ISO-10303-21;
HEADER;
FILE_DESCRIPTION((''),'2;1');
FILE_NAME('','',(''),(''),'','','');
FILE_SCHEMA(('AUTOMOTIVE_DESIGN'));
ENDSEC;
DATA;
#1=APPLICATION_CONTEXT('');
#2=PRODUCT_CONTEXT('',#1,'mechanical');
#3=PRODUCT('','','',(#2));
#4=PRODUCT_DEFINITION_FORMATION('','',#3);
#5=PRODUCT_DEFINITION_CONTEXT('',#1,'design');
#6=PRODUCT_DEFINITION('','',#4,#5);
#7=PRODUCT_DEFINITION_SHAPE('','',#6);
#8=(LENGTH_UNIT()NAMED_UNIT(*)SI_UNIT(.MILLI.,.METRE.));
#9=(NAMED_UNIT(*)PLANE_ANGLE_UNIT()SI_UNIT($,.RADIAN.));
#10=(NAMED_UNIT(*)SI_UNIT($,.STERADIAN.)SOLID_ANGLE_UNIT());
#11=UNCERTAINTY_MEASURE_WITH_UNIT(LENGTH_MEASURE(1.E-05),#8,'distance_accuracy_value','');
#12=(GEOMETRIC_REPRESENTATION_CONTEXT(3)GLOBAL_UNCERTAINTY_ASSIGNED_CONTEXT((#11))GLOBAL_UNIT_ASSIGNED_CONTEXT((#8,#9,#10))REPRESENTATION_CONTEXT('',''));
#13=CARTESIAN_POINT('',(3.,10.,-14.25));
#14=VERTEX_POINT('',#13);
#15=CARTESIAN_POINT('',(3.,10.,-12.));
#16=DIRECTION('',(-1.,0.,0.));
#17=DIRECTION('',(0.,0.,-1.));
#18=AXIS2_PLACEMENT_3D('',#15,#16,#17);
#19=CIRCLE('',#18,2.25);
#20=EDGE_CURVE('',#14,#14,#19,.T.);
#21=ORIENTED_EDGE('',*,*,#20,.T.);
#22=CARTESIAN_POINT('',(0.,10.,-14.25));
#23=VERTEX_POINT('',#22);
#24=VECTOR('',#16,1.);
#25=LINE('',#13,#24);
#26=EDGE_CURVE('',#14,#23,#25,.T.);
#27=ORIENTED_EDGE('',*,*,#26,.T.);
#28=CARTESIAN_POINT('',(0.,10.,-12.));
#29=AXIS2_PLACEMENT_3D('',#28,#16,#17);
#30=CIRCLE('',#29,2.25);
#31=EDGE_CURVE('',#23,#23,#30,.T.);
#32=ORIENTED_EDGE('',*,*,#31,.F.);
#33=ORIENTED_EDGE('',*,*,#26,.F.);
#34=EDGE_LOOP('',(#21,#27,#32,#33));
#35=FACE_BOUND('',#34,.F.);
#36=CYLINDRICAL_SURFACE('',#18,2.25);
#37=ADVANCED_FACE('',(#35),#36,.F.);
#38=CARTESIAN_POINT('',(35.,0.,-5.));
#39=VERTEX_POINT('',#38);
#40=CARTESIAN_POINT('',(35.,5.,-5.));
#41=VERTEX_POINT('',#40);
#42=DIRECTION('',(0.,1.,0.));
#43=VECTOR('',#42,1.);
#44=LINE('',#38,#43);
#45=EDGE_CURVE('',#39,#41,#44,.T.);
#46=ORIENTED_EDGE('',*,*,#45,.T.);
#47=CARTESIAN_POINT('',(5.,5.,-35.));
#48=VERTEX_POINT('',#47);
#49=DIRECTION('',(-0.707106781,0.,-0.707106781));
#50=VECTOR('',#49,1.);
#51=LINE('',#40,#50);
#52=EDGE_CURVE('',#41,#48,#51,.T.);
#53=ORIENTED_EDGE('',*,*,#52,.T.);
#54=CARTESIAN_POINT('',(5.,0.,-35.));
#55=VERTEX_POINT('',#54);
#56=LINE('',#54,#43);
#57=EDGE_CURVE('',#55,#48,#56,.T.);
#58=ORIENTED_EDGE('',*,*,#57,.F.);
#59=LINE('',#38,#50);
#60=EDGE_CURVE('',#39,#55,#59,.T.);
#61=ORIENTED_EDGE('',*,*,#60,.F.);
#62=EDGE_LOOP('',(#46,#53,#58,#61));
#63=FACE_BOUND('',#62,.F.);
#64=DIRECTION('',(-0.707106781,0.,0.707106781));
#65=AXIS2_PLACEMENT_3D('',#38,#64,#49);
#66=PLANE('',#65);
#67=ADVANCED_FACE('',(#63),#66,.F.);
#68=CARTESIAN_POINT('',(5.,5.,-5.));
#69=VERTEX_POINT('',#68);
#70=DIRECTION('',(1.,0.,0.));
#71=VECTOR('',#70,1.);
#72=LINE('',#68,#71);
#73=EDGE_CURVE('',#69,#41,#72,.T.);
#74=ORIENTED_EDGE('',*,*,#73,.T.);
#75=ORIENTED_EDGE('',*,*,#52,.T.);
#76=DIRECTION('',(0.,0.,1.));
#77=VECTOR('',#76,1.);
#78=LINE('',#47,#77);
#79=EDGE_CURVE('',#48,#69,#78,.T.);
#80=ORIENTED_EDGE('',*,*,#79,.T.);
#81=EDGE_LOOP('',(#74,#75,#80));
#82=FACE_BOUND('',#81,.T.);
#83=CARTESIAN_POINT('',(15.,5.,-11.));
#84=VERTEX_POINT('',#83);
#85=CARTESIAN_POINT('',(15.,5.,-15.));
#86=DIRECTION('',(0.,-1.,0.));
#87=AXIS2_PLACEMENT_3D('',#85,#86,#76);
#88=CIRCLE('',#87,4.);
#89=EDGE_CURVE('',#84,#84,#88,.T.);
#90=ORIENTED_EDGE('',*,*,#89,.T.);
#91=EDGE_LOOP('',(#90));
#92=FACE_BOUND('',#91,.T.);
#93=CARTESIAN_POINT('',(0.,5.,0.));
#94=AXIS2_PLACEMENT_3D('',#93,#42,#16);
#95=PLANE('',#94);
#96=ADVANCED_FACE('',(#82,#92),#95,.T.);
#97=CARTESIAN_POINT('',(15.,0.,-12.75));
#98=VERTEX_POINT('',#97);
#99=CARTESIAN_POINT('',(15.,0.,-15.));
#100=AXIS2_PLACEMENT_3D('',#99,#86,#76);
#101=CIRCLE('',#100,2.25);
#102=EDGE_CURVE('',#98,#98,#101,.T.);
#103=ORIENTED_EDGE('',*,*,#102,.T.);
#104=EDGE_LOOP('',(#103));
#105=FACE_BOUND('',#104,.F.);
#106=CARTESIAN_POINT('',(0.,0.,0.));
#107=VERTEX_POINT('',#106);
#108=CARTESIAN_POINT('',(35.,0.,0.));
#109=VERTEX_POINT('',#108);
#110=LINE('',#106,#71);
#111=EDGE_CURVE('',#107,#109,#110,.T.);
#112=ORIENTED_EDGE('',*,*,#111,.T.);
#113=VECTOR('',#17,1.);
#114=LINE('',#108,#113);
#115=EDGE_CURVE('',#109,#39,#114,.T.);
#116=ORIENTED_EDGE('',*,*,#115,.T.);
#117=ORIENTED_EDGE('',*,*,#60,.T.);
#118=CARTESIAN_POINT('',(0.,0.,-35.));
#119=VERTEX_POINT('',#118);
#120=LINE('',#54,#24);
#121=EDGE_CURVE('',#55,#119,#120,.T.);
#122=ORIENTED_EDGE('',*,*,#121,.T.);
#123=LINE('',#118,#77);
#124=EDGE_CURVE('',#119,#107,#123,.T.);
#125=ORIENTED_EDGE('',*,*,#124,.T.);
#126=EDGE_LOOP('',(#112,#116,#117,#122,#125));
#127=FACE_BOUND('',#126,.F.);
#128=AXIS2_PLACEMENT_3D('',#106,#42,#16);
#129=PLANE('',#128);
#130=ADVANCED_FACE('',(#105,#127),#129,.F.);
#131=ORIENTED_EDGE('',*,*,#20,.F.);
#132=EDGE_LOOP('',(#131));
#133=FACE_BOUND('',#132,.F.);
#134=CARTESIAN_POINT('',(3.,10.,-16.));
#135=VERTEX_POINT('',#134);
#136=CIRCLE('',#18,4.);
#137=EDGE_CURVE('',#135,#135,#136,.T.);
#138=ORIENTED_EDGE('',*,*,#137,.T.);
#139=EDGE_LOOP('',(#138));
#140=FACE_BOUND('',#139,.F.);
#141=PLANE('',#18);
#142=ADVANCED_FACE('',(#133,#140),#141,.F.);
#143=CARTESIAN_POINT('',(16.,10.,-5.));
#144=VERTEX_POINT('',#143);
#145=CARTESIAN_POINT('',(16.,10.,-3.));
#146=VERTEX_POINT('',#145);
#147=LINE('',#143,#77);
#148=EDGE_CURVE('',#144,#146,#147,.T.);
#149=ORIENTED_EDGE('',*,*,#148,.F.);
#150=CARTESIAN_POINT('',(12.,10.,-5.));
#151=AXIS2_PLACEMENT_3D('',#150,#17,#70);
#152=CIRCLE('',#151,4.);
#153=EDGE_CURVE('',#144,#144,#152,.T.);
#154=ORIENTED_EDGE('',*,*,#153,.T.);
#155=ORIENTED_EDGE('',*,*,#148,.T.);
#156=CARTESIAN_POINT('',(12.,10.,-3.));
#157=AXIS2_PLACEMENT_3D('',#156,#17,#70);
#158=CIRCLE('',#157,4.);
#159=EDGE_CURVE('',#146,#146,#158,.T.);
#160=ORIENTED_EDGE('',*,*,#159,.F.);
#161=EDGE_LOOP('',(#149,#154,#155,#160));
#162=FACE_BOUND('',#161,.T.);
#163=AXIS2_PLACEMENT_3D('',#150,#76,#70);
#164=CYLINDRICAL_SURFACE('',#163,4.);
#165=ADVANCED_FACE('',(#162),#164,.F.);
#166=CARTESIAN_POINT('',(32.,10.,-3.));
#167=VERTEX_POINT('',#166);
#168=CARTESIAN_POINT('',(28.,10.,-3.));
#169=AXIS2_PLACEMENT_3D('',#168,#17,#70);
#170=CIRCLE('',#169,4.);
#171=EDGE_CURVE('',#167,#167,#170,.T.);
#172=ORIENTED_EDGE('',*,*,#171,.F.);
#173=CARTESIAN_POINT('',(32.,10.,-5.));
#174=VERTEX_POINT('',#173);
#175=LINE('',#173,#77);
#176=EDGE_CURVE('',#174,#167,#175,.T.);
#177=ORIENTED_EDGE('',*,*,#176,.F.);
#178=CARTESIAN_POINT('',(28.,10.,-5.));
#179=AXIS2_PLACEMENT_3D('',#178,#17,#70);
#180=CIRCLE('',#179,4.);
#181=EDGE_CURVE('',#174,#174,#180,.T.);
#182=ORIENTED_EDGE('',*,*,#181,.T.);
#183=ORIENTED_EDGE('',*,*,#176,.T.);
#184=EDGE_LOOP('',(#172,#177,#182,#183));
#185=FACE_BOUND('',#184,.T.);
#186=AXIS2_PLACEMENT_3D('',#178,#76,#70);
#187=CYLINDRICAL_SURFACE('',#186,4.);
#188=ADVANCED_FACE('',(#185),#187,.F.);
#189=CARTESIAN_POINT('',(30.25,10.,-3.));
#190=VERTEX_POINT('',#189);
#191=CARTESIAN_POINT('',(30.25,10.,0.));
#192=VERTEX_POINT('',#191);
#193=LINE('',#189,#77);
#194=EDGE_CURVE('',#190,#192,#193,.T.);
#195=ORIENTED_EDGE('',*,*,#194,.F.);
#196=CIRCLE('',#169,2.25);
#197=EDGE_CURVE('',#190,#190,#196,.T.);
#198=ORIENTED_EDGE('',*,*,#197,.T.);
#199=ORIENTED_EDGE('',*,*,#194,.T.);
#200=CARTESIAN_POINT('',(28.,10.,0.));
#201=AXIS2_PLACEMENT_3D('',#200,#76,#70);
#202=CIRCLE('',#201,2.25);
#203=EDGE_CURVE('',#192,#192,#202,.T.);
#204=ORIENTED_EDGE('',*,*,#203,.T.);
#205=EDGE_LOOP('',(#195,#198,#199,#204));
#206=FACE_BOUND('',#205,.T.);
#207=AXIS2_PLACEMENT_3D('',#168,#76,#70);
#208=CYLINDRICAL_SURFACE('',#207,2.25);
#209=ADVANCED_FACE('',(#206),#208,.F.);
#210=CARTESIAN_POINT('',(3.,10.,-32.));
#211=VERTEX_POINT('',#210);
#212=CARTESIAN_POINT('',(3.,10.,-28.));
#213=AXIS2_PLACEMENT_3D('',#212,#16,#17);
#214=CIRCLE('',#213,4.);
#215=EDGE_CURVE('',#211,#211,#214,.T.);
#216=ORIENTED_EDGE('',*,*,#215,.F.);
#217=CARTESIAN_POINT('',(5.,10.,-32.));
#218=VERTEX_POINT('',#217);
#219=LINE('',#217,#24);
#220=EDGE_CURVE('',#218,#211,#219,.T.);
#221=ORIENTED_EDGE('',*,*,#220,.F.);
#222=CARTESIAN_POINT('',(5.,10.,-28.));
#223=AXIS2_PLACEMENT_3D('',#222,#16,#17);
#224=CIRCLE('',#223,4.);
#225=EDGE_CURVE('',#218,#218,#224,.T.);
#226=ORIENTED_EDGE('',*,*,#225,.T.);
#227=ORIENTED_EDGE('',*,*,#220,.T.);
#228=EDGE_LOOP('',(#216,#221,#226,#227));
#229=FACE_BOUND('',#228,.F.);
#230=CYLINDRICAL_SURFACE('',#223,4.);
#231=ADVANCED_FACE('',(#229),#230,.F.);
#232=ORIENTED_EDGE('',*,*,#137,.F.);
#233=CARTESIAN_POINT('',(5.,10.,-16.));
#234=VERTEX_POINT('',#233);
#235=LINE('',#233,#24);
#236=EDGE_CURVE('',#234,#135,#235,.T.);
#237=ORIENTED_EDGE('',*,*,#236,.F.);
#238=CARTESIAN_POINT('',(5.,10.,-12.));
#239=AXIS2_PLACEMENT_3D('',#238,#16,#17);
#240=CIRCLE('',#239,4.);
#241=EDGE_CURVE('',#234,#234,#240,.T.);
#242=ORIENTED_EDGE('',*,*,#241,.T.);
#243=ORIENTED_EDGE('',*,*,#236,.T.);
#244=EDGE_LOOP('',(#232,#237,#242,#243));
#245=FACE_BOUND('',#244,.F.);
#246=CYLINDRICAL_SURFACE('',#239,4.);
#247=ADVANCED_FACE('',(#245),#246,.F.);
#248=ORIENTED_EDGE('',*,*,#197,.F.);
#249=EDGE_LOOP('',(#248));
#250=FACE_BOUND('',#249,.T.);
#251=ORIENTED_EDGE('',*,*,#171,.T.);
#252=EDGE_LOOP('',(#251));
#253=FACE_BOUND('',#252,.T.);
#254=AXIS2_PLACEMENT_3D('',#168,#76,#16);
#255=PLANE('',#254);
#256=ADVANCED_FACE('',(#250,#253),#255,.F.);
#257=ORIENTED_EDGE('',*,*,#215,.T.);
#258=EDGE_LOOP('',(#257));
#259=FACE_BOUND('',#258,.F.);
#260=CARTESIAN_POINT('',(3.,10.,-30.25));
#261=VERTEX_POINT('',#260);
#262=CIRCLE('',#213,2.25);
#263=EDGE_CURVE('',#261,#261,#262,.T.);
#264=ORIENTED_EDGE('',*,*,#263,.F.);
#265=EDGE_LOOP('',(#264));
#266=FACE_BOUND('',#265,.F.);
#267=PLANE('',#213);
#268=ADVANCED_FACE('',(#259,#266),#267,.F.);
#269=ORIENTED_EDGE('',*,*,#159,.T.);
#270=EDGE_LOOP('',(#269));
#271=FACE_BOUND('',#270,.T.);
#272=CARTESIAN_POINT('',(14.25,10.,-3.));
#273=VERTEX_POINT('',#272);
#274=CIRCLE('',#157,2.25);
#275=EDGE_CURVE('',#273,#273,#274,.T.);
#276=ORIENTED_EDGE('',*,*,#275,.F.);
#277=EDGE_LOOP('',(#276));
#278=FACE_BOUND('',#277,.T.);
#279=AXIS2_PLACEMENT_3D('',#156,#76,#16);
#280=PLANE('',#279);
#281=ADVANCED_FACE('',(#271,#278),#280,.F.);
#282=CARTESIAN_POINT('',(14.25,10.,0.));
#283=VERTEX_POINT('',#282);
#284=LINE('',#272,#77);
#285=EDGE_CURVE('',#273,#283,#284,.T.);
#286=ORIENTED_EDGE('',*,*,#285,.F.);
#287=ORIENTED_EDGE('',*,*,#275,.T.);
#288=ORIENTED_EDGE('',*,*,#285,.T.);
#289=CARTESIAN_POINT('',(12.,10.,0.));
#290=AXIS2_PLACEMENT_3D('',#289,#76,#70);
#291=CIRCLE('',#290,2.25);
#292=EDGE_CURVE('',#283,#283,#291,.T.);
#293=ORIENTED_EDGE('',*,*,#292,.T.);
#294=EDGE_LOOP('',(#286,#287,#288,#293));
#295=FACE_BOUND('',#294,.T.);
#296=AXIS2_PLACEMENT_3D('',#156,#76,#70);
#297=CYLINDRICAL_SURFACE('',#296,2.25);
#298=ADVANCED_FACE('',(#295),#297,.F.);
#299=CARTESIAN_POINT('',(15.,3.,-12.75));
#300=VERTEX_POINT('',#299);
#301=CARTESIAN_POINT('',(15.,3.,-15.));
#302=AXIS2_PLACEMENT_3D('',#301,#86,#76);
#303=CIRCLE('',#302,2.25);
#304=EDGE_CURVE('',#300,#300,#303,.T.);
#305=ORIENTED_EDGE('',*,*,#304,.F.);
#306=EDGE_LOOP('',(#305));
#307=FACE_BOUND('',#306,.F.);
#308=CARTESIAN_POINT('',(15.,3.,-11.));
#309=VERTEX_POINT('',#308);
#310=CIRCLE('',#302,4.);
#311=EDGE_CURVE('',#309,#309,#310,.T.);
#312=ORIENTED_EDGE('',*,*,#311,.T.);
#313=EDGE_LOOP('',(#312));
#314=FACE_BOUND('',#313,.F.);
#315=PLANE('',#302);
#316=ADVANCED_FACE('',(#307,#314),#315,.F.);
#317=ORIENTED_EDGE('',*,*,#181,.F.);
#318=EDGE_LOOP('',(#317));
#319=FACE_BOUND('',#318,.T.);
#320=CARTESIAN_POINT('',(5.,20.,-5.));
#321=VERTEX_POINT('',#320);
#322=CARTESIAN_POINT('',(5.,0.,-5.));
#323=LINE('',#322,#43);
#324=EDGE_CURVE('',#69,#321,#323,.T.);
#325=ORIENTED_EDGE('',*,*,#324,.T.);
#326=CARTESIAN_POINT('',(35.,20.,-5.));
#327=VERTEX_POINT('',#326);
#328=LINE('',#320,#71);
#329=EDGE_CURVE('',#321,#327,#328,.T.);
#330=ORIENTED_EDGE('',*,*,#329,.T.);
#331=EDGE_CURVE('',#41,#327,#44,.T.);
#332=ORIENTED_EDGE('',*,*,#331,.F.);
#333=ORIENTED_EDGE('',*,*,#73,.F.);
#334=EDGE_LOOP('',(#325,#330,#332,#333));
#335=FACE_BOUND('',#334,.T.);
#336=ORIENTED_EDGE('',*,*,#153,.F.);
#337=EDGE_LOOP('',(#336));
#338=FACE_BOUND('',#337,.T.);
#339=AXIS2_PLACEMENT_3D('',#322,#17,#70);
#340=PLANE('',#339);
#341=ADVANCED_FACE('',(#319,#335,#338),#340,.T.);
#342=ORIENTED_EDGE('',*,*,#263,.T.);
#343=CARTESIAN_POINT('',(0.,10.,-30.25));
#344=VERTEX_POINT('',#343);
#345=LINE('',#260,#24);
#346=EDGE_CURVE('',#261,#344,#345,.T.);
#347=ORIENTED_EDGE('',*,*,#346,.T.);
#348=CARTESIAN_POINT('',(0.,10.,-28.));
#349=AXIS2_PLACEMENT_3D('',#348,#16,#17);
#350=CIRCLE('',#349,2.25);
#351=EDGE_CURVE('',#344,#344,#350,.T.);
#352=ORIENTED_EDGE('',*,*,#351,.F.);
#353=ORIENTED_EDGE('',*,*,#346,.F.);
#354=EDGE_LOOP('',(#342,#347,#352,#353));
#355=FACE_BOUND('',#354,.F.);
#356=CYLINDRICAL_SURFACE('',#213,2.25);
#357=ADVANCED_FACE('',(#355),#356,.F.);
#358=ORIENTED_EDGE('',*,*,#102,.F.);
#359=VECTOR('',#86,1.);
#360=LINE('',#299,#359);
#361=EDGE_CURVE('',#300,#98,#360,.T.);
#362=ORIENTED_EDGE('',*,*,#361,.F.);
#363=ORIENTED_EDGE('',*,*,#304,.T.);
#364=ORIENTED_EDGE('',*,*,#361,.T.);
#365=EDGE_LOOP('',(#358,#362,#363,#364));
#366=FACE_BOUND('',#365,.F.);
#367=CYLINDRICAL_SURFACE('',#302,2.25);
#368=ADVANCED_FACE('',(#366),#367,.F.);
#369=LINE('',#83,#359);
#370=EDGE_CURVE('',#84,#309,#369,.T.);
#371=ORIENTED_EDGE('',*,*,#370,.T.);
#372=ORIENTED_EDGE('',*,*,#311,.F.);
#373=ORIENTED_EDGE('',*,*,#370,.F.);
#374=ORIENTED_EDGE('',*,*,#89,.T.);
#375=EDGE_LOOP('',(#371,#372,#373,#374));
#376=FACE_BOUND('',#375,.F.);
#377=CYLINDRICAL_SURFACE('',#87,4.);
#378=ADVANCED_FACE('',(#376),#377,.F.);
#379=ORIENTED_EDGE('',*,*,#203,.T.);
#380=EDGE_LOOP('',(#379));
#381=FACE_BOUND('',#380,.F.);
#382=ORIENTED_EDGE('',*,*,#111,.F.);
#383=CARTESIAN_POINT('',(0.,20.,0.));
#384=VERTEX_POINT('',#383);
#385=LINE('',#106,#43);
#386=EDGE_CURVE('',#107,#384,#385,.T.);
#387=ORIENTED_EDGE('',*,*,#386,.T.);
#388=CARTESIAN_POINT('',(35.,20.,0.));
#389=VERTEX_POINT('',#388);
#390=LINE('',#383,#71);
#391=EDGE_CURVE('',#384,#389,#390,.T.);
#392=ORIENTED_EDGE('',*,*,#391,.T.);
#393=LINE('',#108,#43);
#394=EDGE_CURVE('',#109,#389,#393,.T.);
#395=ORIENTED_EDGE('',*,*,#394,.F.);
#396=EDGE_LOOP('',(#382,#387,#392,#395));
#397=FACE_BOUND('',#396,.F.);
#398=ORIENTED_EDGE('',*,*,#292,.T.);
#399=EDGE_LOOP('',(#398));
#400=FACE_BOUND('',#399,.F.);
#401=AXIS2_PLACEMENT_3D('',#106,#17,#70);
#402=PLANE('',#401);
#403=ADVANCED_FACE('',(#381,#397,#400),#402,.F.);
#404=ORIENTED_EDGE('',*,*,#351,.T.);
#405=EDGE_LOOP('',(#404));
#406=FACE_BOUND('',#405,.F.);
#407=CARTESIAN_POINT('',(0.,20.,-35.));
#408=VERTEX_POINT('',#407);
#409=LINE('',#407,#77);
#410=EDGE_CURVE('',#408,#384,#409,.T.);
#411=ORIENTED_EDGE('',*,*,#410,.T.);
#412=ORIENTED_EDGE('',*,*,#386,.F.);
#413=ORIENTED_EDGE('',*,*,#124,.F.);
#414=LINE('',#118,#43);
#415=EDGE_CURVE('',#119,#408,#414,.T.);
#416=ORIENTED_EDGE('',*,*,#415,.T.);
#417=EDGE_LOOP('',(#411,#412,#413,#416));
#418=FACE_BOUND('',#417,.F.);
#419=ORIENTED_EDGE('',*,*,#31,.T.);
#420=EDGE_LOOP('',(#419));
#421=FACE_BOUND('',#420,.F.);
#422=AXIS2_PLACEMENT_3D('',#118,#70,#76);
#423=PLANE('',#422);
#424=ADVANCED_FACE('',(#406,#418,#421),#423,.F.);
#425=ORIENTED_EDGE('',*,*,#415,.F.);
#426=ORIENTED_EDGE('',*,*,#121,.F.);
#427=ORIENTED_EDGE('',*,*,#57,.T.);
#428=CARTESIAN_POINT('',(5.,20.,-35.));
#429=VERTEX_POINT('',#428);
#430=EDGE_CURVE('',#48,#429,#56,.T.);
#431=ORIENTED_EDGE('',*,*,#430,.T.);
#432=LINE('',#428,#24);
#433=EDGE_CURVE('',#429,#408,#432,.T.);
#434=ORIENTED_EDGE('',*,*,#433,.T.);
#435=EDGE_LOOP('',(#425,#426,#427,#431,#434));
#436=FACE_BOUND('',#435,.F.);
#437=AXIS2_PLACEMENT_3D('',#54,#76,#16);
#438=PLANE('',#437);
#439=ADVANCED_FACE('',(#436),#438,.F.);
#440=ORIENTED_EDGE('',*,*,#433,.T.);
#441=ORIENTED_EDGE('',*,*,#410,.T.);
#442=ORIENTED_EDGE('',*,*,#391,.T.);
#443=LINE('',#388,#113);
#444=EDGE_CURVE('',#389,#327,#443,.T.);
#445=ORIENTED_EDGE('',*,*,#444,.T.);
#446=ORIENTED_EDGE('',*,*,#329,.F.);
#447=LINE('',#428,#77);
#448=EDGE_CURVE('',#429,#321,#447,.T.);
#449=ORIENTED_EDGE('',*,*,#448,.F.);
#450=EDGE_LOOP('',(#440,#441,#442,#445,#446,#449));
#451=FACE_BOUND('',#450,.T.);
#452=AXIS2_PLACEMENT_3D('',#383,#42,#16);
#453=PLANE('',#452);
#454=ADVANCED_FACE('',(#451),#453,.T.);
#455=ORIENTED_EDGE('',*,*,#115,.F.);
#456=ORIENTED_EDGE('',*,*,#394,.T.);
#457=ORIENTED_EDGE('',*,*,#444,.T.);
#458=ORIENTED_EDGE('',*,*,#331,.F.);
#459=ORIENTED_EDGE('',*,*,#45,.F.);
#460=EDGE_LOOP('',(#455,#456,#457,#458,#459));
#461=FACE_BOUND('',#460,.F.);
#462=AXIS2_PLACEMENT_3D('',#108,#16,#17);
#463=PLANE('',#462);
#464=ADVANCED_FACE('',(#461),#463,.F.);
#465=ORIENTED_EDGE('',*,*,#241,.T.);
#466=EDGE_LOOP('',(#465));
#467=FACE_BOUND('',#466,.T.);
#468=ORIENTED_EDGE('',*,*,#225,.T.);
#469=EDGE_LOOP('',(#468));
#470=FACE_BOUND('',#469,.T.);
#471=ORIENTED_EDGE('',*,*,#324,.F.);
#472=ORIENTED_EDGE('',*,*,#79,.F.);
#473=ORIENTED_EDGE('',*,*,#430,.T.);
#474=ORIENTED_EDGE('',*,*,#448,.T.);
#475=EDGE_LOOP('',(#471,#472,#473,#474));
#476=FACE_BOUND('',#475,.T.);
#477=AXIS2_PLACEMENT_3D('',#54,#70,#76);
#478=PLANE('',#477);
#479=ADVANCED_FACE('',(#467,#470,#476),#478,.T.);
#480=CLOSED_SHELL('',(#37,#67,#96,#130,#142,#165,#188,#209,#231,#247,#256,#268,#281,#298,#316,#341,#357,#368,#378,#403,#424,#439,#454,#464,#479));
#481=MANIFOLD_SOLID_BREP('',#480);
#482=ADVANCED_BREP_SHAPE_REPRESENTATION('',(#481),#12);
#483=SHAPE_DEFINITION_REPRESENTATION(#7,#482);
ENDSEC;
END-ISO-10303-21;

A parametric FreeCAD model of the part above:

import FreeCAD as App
import Part
import Sketcher
Q = App.Units.Quantity


def add_polygon(sketch, points):
    """Adds a closed chain of lines whose ends are joined by coincident constraints."""
    first, n = sketch.GeometryCount, len(points)
    for a, b in zip(points, points[1:] + points[:1]):
        sketch.addGeometry(Part.LineSegment(App.Vector(*a, 0), App.Vector(*b, 0)), False)
    for i in range(n):
        sketch.addConstraint(Sketcher.Constraint("Coincident", first + i, 2, first + (i + 1) % n, 1))

doc = App.newDocument("Part")
body = doc.addObject("PartDesign::Body", "Body")

sketch1 = doc.addObject("Sketcher::SketchObject", "Sketch")
body.addObject(sketch1)
sketch1.AttachmentSupport = (doc.XZ_Plane, [""])
sketch1.MapMode = "FlatFace"
add_polygon(sketch1, [(0, -35), (0, 0), (35, 0), (35, -5), (5, -5), (5, -35)])
sketch1.addConstraint([
    Sketcher.Constraint("Vertical", 0),
    Sketcher.Constraint("Horizontal", 1),
    Sketcher.Constraint("Vertical", 2),
    Sketcher.Constraint("Horizontal", 3),
    Sketcher.Constraint("Vertical", 4),
    Sketcher.Constraint("Horizontal", 5),
    Sketcher.Constraint("Coincident", 0, 2, -1, 1),
    Sketcher.Constraint("Equal", 1, 0),
    Sketcher.Constraint("Equal", 5, 2),
    Sketcher.Constraint("DistanceX", 1, 1, 1, 2, Q("35 mm")),
    Sketcher.Constraint("DistanceX", 5, 2, 5, 1, Q("5 mm")),
])
pad1 = doc.addObject("PartDesign::Pad", "Pad")
body.addObject(pad1)
pad1.Profile = sketch1
pad1.Length = 20
pad1.Reversed = True

sketch2 = doc.addObject("Sketcher::SketchObject", "Sketch001")
body.addObject(sketch2)
sketch2.AttachmentSupport = (doc.XZ_Plane, [""])
sketch2.MapMode = "FlatFace"
add_polygon(sketch2, [(5, -5), (35, -5), (5, -35)])
sketch2.addConstraint([
    Sketcher.Constraint("Horizontal", 0),
    Sketcher.Constraint("Vertical", 2),
    Sketcher.Constraint("Equal", 0, 2),
    Sketcher.Constraint("DistanceX", -1, 1, 0, 2, Q("35 mm")),
    Sketcher.Constraint("DistanceY", 0, 2, -1, 1, Q("5 mm")),
    Sketcher.Constraint("DistanceX", -1, 1, 1, 2, Q("5 mm")),
])
pad2 = doc.addObject("PartDesign::Pad", "Pad001")
body.addObject(pad2)
pad2.Profile = sketch2
pad2.Length = 5
pad2.Reversed = True

sketch3 = doc.addObject("Sketcher::SketchObject", "Sketch002")
body.addObject(sketch3)
sketch3.AttachmentSupport = (doc.XZ_Plane, [""])
sketch3.MapMode = "FlatFace"
sketch3.AttachmentOffset = App.Placement(App.Vector(0, 0, -5), App.Rotation())
sketch3.addGeometry(Part.Circle(App.Vector(15, -15, 0), App.Vector(0, 0, 1), 2.2), False)
sketch3.addConstraint([
    Sketcher.Constraint("Diameter", 0, Q("4.5 mm")),
    Sketcher.Constraint("DistanceX", -1, 1, 0, 3, Q("15 mm")),
    Sketcher.Constraint("DistanceY", 0, 3, -1, 1, Q("15 mm")),
])
doc.recompute()
hole = doc.addObject("PartDesign::Hole", "Hole")
body.addObject(hole)
hole.Profile = sketch3
hole.ThreadType = "None"
hole.Diameter = 4.5
hole.DepthType = "ThroughAll"
hole.HoleCutType = "Counterbore"
hole.HoleCutDiameter = 8
hole.HoleCutDepth = 2
hole.Reversed = True

sketch4 = doc.addObject("Sketcher::SketchObject", "Sketch003")
body.addObject(sketch4)
sketch4.AttachmentSupport = (doc.YZ_Plane, [""])
sketch4.MapMode = "FlatFace"
sketch4.AttachmentOffset = App.Placement(App.Vector(0, 0, 5), App.Rotation())
sketch4.addGeometry([
    Part.Circle(App.Vector(10, -12, 0), App.Vector(0, 0, 1), 2.2),
    Part.Circle(App.Vector(10, -28, 0), App.Vector(0, 0, 1), 2.2),
], False)
sketch4.addConstraint([
    Sketcher.Constraint("Equal", 0, 1),
    Sketcher.Constraint("Vertical", 0, 3, 1, 3),
    Sketcher.Constraint("Diameter", 0, Q("4.5 mm")),
    Sketcher.Constraint("DistanceX", -1, 1, 0, 3, Q("10 mm")),
    Sketcher.Constraint("DistanceY", 0, 3, -1, 1, Q("12 mm")),
    Sketcher.Constraint("DistanceY", 1, 3, -1, 1, Q("28 mm")),
])
doc.recompute()
hole2 = doc.addObject("PartDesign::Hole", "Hole001")
body.addObject(hole2)
hole2.Profile = sketch4
hole2.ThreadType = "None"
hole2.Diameter = 4.5
hole2.DepthType = "ThroughAll"
hole2.HoleCutType = "Counterbore"
hole2.HoleCutDiameter = 8
hole2.HoleCutDepth = 2
doc.recompute()

datumplane = doc.addObject("PartDesign::Plane", "DatumPlane")
body.addObject(datumplane)
datumplane.Placement = App.Placement(App.Vector(0, 0, 0), App.Rotation(App.Vector(0.707106781, 0, -0.707106781), App.Vector(0, -1, 0), App.Vector(-0.707106781, 0, -0.707106781), "ZXY"))
mirrored = doc.addObject("PartDesign::Mirrored", "Mirrored")
body.addObject(mirrored)
mirrored.Originals = [hole2]
mirrored.MirrorPlane = (datumplane, [""])
body.Tip = mirrored

doc.recompute()
